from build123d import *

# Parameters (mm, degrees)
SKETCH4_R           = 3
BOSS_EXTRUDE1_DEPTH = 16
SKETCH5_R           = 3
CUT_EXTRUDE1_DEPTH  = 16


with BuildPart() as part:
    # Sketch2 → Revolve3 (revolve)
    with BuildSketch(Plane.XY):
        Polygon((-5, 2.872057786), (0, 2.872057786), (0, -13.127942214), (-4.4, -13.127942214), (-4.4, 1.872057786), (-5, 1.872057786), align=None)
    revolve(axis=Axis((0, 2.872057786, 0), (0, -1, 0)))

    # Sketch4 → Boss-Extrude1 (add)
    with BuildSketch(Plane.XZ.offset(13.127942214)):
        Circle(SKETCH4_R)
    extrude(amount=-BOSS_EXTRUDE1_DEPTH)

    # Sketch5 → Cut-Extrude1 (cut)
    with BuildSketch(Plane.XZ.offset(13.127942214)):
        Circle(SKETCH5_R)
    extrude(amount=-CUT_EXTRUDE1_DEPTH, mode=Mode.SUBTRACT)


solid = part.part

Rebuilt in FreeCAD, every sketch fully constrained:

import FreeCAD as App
import Part
import Sketcher

V = App.Vector


def add_polygon(sketch, points):
    """Adds a closed chain of lines whose ends are joined by coincident constraints."""
    first, n = sketch.GeometryCount, len(points)
    for a, b in zip(points, points[1:] + points[:1]):
        sketch.addGeometry(Part.LineSegment(App.Vector(*a, 0), App.Vector(*b, 0)), False)
    for i in range(n):
        sketch.addConstraint(Sketcher.Constraint("Coincident", first + i, 2, first + (i + 1) % n, 1))

doc = App.newDocument("Part")
body = doc.addObject("PartDesign::Body", "Body")

sketch1 = doc.addObject("Sketcher::SketchObject", "Sketch")
body.addObject(sketch1)
sketch1.AttachmentSupport = (doc.XY_Plane, [""])
sketch1.MapMode = "FlatFace"
add_polygon(sketch1, [(0, 2.9), (-5, 2.9), (-5, 1.9), (-4.4, 1.9), (-4.4, -13.1), (0, -13.1)])
sketch1.addConstraint([
    Sketcher.Constraint("Horizontal", 0),
    Sketcher.Constraint("Vertical", 1),
    Sketcher.Constraint("Horizontal", 2),
    Sketcher.Constraint("Vertical", 3),
    Sketcher.Constraint("Horizontal", 4),
    Sketcher.Constraint("Vertical", 5),
    Sketcher.Constraint("PointOnObject", 4, 2, -2),
    Sketcher.Constraint("DistanceX", 0, 2, 0, 1, 5.0),
    Sketcher.Constraint("DistanceY", 1, 2, 1, 1, 1.0),
    Sketcher.Constraint("DistanceY", 3, 2, 3, 1, 15.0),
    Sketcher.Constraint("DistanceX", 2, 1, 2, 2, 0.6),
    Sketcher.Constraint("DistanceY", -1, 1, 0, 2, 2.872058),
])
revolution = doc.addObject("PartDesign::Revolution", "Revolution")
body.addObject(revolution)
revolution.Profile = sketch1
revolution.ReferenceAxis = (sketch1, ["V_Axis"])
revolution.Angle = 360

sketch2 = doc.addObject("Sketcher::SketchObject", "Sketch001")
body.addObject(sketch2)
sketch2.AttachmentSupport = (doc.XZ_Plane, [""])
sketch2.MapMode = "FlatFace"
sketch2.AttachmentOffset = App.Placement(V(0, 0, 13.127942), App.Rotation())
sketch2.addGeometry(Part.Circle(V(0, 0, 0), V(0, 0, 1), 3), False)
sketch2.addConstraint([
    Sketcher.Constraint("Coincident", 0, 3, -1, 1),
    Sketcher.Constraint("Diameter", 0, 6.0),
])
pad1 = doc.addObject("PartDesign::Pad", "Pad")
body.addObject(pad1)
pad1.Profile = sketch2
pad1.Length = 16
pad1.Reversed = True

sketch3 = doc.addObject("Sketcher::SketchObject", "Sketch002")
body.addObject(sketch3)
sketch3.AttachmentSupport = (doc.XZ_Plane, [""])
sketch3.MapMode = "FlatFace"
sketch3.AttachmentOffset = App.Placement(V(0, 0, 13.127942), App.Rotation())
sketch3.addGeometry(Part.Circle(V(0, 0, 0), V(0, 0, 1), 3), False)
sketch3.addConstraint([
    Sketcher.Constraint("Coincident", 0, 3, -1, 1),
    Sketcher.Constraint("Diameter", 0, 6.0),
])
pocket1 = doc.addObject("PartDesign::Pocket", "Pocket")
body.addObject(pocket1)
pocket1.Profile = sketch3
pocket1.Length = 16

doc.recompute()
